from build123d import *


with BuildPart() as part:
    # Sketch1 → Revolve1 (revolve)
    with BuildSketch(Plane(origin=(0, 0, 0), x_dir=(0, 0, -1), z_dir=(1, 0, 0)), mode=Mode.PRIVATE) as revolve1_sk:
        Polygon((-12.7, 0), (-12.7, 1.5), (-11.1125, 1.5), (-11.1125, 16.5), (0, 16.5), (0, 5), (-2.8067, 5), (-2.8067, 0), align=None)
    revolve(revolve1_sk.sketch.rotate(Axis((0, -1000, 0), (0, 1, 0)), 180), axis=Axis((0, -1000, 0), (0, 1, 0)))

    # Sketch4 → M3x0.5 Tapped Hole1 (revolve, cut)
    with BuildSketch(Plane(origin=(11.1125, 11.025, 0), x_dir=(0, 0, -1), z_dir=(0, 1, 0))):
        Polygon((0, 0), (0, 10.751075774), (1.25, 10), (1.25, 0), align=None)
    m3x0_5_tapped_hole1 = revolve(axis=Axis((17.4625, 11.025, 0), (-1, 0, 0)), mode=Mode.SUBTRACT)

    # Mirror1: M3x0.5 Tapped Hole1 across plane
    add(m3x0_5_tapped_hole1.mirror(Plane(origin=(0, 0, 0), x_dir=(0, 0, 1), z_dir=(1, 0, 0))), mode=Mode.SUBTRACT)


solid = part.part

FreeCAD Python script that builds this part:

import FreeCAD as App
import Part
import Sketcher

V = App.Vector
Q = App.Units.Quantity


def add_polygon(sketch, points):
    """Adds a closed chain of lines whose ends are joined by coincident constraints."""
    first, n = sketch.GeometryCount, len(points)
    for a, b in zip(points, points[1:] + points[:1]):
        sketch.addGeometry(Part.LineSegment(App.Vector(*a, 0), App.Vector(*b, 0)), False)
    for i in range(n):
        sketch.addConstraint(Sketcher.Constraint("Coincident", first + i, 2, first + (i + 1) % n, 1))

doc = App.newDocument("Part")
params = doc.addObject("Spreadsheet::Sheet", "Params")
for row, (alias, value) in enumerate([
    ("sketch1_width", "5 mm"),
    ("sketch1_width2", "15 mm"),
    ("sketch1_width3", "1.5 mm"),
    ("revolution_angle", "360 deg"),
    ("sketch2_width", "10 mm"),
    ("sketch2_height", "1.25 mm"),
    ("groove_angle", "360 deg"),
], start=1):
    params.set(f"A{row}", alias)
    params.set(f"B{row}", "=" + value)
    params.setAlias(f"B{row}", alias)

body = doc.addObject("PartDesign::Body", "Body")

# Sketch on YZ plane
sketch1 = body.newObject("Sketcher::SketchObject", "Sketch")
sketch1.AttachmentSupport = (doc.getObject("YZ_Plane"), [""])
sketch1.MapMode = "FlatFace"
add_polygon(sketch1, [(1.5, 12.7), (0, 12.7), (0, 2.8067), (5, 2.8067), (5, 0), (16.5, 0), (16.5, 11.1125), (1.5, 11.1125)])  # lines 0-7
sketch1.addConstraint([
    Sketcher.Constraint("Horizontal", 0),
    Sketcher.Constraint("Vertical", 1),
    Sketcher.Constraint("Horizontal", 2),
    Sketcher.Constraint("Vertical", 3),
    Sketcher.Constraint("Horizontal", 4),
    Sketcher.Constraint("Vertical", 5),
    Sketcher.Constraint("Horizontal", 6),
    Sketcher.Constraint("Vertical", 7),
    Sketcher.Constraint("PointOnObject", 0, 2, -2),
    Sketcher.Constraint("PointOnObject", 3, 2, -1),
    Sketcher.Constraint("DistanceX", 2, 1, 2, 2, Q("5 mm")),
    Sketcher.Constraint("DistanceX", 6, 2, 6, 1, Q("15 mm")),
    Sketcher.Constraint("DistanceX", 0, 2, 0, 1, Q("1.5 mm")),
    Sketcher.Constraint("DistanceY", -1, 1, 0, 2, Q("12.7 mm")),
    Sketcher.Constraint("DistanceY", 1, 2, 1, 1, Q("9.8933 mm")),
    Sketcher.Constraint("DistanceY", 5, 1, 5, 2, Q("11.1125 mm")),
])
sketch1.setExpression("Constraints[18]", "Params.sketch1_width")
sketch1.setExpression("Constraints[19]", "Params.sketch1_width2")
sketch1.setExpression("Constraints[20]", "Params.sketch1_width3")
revolution = body.newObject("PartDesign::Revolution", "Revolution")
revolution.Profile = sketch1
revolution.ReferenceAxis = (sketch1, ["H_Axis"])
revolution.setExpression("Angle", "Params.revolution_angle")

# Sketch on XZ plane
sketch2 = body.newObject("Sketcher::SketchObject", "Sketch001")
sketch2.AttachmentSupport = (doc.getObject("XZ_Plane"), [""])
sketch2.MapMode = "FlatFace"
sketch2.AttachmentOffset = App.Placement(V(0, 0, -11.025), App.Rotation())
add_polygon(sketch2, [(0.361424, 0), (11.1125, 0), (11.1125, -1.25), (1.1125, -1.25)])  # lines 0-3
sketch2.addConstraint([
    Sketcher.Constraint("Horizontal", 0),
    Sketcher.Constraint("Vertical", 1),
    Sketcher.Constraint("Horizontal", 2),
    Sketcher.Constraint("PointOnObject", 0, 2, -1),
    Sketcher.Constraint("DistanceX", 2, 2, 2, 1, Q("10 mm")),
    Sketcher.Constraint("Angle", 3, Q("121 deg")),
    Sketcher.Constraint("DistanceY", 1, 2, 1, 1, Q("1.25 mm")),
    Sketcher.Constraint("DistanceX", -1, 1, 0, 2, Q("11.1125 mm")),
])
sketch2.setExpression("Constraints[8]", "Params.sketch2_width")
sketch2.setExpression("Constraints[10]", "Params.sketch2_height")
groove = body.newObject("PartDesign::Groove", "Groove")
groove.Profile = sketch2
groove.ReferenceAxis = (sketch2, ["H_Axis"])
groove.setExpression("Angle", "Params.groove_angle")
doc.recompute()

mirrored = body.newObject("PartDesign::Mirrored", "Mirrored")
mirrored.Originals = [groove]
mirrored.MirrorPlane = (doc.getObject("YZ_Plane"), [""])
body.Tip = mirrored

doc.recompute()
